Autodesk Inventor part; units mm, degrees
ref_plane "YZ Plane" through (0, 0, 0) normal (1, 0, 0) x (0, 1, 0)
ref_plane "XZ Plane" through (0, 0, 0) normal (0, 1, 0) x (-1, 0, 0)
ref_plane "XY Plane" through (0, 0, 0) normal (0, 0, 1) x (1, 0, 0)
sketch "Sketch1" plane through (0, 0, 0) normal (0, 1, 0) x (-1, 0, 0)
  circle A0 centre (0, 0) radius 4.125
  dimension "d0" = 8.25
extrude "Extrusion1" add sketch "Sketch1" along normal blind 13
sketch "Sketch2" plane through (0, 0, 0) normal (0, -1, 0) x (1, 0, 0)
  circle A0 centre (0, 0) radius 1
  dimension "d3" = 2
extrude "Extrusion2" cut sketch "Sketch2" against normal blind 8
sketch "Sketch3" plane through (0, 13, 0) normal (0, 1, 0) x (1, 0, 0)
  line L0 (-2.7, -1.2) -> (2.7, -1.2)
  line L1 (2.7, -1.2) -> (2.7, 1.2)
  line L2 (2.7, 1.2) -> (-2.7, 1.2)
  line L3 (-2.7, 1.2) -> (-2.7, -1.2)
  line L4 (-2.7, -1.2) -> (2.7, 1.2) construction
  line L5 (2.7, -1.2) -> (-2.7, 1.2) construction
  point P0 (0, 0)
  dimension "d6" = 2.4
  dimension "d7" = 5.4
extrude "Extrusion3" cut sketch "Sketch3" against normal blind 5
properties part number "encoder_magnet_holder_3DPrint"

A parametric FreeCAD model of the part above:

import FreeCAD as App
import Part
import Sketcher


def add_polygon(sketch, points):
    """Adds a closed chain of lines whose ends are joined by coincident constraints."""
    first, n = sketch.GeometryCount, len(points)
    for a, b in zip(points, points[1:] + points[:1]):
        sketch.addGeometry(Part.LineSegment(App.Vector(*a, 0), App.Vector(*b, 0)), False)
    for i in range(n):
        sketch.addConstraint(Sketcher.Constraint("Coincident", first + i, 2, first + (i + 1) % n, 1))

doc = App.newDocument("Part")
body = doc.addObject("PartDesign::Body", "Body")

# Sketch on XZ plane
sketch1 = body.newObject("Sketcher::SketchObject", "Sketch")
sketch1.AttachmentSupport = (doc.getObject("XZ_Plane"), [""])
sketch1.MapMode = "FlatFace"
sketch1.addGeometry(Part.Circle(App.Vector(0, 0, 0), App.Vector(0, 0, 1), 4.1), False)
sketch1.addConstraint([
    Sketcher.Constraint("Coincident", 0, 3, -1, 1),
    Sketcher.Constraint("Diameter", 0, 8.25),
])
pad1 = body.newObject("PartDesign::Pad", "Pad")
pad1.Profile = sketch1
pad1.Length = 13
pad1.Reversed = True

# Sketch on XZ plane
sketch2 = body.newObject("Sketcher::SketchObject", "Sketch001")
sketch2.AttachmentSupport = (doc.getObject("XZ_Plane"), [""])
sketch2.MapMode = "FlatFace"
sketch2.addGeometry(Part.Circle(App.Vector(0, 0, 0), App.Vector(0, 0, 1), 1), False)
sketch2.addConstraint([
    Sketcher.Constraint("Coincident", 0, 3, -1, 1),
    Sketcher.Constraint("Diameter", 0, 2.0),
])
pocket1 = body.newObject("PartDesign::Pocket", "Pocket")
pocket1.Profile = sketch2
pocket1.Length = 8

# Sketch on XZ plane
sketch3 = body.newObject("Sketcher::SketchObject", "Sketch002")
sketch3.AttachmentSupport = (doc.getObject("XZ_Plane"), [""])
sketch3.MapMode = "FlatFace"
sketch3.AttachmentOffset = App.Placement(App.Vector(0, 0, -13), App.Rotation())
add_polygon(sketch3, [(-2.7, -1.2), (-2.7, 1.2), (2.7, 1.2), (2.7, -1.2)])  # lines 0-3
sketch3.addConstraint([
    Sketcher.Constraint("Vertical", 0),
    Sketcher.Constraint("Horizontal", 1),
    Sketcher.Constraint("Vertical", 2),
    Sketcher.Constraint("Horizontal", 3),
    Sketcher.Constraint("Symmetric", 0, 2, 2, 2, -1, 1),
    Sketcher.Constraint("DistanceX", 1, 1, 1, 2, 5.4),
    Sketcher.Constraint("DistanceY", 0, 1, 0, 2, 2.4),
])
pocket2 = body.newObject("PartDesign::Pocket", "Pocket001")
pocket2.Profile = sketch3
pocket2.Length = 5
pocket2.Reversed = True

doc.recompute()
